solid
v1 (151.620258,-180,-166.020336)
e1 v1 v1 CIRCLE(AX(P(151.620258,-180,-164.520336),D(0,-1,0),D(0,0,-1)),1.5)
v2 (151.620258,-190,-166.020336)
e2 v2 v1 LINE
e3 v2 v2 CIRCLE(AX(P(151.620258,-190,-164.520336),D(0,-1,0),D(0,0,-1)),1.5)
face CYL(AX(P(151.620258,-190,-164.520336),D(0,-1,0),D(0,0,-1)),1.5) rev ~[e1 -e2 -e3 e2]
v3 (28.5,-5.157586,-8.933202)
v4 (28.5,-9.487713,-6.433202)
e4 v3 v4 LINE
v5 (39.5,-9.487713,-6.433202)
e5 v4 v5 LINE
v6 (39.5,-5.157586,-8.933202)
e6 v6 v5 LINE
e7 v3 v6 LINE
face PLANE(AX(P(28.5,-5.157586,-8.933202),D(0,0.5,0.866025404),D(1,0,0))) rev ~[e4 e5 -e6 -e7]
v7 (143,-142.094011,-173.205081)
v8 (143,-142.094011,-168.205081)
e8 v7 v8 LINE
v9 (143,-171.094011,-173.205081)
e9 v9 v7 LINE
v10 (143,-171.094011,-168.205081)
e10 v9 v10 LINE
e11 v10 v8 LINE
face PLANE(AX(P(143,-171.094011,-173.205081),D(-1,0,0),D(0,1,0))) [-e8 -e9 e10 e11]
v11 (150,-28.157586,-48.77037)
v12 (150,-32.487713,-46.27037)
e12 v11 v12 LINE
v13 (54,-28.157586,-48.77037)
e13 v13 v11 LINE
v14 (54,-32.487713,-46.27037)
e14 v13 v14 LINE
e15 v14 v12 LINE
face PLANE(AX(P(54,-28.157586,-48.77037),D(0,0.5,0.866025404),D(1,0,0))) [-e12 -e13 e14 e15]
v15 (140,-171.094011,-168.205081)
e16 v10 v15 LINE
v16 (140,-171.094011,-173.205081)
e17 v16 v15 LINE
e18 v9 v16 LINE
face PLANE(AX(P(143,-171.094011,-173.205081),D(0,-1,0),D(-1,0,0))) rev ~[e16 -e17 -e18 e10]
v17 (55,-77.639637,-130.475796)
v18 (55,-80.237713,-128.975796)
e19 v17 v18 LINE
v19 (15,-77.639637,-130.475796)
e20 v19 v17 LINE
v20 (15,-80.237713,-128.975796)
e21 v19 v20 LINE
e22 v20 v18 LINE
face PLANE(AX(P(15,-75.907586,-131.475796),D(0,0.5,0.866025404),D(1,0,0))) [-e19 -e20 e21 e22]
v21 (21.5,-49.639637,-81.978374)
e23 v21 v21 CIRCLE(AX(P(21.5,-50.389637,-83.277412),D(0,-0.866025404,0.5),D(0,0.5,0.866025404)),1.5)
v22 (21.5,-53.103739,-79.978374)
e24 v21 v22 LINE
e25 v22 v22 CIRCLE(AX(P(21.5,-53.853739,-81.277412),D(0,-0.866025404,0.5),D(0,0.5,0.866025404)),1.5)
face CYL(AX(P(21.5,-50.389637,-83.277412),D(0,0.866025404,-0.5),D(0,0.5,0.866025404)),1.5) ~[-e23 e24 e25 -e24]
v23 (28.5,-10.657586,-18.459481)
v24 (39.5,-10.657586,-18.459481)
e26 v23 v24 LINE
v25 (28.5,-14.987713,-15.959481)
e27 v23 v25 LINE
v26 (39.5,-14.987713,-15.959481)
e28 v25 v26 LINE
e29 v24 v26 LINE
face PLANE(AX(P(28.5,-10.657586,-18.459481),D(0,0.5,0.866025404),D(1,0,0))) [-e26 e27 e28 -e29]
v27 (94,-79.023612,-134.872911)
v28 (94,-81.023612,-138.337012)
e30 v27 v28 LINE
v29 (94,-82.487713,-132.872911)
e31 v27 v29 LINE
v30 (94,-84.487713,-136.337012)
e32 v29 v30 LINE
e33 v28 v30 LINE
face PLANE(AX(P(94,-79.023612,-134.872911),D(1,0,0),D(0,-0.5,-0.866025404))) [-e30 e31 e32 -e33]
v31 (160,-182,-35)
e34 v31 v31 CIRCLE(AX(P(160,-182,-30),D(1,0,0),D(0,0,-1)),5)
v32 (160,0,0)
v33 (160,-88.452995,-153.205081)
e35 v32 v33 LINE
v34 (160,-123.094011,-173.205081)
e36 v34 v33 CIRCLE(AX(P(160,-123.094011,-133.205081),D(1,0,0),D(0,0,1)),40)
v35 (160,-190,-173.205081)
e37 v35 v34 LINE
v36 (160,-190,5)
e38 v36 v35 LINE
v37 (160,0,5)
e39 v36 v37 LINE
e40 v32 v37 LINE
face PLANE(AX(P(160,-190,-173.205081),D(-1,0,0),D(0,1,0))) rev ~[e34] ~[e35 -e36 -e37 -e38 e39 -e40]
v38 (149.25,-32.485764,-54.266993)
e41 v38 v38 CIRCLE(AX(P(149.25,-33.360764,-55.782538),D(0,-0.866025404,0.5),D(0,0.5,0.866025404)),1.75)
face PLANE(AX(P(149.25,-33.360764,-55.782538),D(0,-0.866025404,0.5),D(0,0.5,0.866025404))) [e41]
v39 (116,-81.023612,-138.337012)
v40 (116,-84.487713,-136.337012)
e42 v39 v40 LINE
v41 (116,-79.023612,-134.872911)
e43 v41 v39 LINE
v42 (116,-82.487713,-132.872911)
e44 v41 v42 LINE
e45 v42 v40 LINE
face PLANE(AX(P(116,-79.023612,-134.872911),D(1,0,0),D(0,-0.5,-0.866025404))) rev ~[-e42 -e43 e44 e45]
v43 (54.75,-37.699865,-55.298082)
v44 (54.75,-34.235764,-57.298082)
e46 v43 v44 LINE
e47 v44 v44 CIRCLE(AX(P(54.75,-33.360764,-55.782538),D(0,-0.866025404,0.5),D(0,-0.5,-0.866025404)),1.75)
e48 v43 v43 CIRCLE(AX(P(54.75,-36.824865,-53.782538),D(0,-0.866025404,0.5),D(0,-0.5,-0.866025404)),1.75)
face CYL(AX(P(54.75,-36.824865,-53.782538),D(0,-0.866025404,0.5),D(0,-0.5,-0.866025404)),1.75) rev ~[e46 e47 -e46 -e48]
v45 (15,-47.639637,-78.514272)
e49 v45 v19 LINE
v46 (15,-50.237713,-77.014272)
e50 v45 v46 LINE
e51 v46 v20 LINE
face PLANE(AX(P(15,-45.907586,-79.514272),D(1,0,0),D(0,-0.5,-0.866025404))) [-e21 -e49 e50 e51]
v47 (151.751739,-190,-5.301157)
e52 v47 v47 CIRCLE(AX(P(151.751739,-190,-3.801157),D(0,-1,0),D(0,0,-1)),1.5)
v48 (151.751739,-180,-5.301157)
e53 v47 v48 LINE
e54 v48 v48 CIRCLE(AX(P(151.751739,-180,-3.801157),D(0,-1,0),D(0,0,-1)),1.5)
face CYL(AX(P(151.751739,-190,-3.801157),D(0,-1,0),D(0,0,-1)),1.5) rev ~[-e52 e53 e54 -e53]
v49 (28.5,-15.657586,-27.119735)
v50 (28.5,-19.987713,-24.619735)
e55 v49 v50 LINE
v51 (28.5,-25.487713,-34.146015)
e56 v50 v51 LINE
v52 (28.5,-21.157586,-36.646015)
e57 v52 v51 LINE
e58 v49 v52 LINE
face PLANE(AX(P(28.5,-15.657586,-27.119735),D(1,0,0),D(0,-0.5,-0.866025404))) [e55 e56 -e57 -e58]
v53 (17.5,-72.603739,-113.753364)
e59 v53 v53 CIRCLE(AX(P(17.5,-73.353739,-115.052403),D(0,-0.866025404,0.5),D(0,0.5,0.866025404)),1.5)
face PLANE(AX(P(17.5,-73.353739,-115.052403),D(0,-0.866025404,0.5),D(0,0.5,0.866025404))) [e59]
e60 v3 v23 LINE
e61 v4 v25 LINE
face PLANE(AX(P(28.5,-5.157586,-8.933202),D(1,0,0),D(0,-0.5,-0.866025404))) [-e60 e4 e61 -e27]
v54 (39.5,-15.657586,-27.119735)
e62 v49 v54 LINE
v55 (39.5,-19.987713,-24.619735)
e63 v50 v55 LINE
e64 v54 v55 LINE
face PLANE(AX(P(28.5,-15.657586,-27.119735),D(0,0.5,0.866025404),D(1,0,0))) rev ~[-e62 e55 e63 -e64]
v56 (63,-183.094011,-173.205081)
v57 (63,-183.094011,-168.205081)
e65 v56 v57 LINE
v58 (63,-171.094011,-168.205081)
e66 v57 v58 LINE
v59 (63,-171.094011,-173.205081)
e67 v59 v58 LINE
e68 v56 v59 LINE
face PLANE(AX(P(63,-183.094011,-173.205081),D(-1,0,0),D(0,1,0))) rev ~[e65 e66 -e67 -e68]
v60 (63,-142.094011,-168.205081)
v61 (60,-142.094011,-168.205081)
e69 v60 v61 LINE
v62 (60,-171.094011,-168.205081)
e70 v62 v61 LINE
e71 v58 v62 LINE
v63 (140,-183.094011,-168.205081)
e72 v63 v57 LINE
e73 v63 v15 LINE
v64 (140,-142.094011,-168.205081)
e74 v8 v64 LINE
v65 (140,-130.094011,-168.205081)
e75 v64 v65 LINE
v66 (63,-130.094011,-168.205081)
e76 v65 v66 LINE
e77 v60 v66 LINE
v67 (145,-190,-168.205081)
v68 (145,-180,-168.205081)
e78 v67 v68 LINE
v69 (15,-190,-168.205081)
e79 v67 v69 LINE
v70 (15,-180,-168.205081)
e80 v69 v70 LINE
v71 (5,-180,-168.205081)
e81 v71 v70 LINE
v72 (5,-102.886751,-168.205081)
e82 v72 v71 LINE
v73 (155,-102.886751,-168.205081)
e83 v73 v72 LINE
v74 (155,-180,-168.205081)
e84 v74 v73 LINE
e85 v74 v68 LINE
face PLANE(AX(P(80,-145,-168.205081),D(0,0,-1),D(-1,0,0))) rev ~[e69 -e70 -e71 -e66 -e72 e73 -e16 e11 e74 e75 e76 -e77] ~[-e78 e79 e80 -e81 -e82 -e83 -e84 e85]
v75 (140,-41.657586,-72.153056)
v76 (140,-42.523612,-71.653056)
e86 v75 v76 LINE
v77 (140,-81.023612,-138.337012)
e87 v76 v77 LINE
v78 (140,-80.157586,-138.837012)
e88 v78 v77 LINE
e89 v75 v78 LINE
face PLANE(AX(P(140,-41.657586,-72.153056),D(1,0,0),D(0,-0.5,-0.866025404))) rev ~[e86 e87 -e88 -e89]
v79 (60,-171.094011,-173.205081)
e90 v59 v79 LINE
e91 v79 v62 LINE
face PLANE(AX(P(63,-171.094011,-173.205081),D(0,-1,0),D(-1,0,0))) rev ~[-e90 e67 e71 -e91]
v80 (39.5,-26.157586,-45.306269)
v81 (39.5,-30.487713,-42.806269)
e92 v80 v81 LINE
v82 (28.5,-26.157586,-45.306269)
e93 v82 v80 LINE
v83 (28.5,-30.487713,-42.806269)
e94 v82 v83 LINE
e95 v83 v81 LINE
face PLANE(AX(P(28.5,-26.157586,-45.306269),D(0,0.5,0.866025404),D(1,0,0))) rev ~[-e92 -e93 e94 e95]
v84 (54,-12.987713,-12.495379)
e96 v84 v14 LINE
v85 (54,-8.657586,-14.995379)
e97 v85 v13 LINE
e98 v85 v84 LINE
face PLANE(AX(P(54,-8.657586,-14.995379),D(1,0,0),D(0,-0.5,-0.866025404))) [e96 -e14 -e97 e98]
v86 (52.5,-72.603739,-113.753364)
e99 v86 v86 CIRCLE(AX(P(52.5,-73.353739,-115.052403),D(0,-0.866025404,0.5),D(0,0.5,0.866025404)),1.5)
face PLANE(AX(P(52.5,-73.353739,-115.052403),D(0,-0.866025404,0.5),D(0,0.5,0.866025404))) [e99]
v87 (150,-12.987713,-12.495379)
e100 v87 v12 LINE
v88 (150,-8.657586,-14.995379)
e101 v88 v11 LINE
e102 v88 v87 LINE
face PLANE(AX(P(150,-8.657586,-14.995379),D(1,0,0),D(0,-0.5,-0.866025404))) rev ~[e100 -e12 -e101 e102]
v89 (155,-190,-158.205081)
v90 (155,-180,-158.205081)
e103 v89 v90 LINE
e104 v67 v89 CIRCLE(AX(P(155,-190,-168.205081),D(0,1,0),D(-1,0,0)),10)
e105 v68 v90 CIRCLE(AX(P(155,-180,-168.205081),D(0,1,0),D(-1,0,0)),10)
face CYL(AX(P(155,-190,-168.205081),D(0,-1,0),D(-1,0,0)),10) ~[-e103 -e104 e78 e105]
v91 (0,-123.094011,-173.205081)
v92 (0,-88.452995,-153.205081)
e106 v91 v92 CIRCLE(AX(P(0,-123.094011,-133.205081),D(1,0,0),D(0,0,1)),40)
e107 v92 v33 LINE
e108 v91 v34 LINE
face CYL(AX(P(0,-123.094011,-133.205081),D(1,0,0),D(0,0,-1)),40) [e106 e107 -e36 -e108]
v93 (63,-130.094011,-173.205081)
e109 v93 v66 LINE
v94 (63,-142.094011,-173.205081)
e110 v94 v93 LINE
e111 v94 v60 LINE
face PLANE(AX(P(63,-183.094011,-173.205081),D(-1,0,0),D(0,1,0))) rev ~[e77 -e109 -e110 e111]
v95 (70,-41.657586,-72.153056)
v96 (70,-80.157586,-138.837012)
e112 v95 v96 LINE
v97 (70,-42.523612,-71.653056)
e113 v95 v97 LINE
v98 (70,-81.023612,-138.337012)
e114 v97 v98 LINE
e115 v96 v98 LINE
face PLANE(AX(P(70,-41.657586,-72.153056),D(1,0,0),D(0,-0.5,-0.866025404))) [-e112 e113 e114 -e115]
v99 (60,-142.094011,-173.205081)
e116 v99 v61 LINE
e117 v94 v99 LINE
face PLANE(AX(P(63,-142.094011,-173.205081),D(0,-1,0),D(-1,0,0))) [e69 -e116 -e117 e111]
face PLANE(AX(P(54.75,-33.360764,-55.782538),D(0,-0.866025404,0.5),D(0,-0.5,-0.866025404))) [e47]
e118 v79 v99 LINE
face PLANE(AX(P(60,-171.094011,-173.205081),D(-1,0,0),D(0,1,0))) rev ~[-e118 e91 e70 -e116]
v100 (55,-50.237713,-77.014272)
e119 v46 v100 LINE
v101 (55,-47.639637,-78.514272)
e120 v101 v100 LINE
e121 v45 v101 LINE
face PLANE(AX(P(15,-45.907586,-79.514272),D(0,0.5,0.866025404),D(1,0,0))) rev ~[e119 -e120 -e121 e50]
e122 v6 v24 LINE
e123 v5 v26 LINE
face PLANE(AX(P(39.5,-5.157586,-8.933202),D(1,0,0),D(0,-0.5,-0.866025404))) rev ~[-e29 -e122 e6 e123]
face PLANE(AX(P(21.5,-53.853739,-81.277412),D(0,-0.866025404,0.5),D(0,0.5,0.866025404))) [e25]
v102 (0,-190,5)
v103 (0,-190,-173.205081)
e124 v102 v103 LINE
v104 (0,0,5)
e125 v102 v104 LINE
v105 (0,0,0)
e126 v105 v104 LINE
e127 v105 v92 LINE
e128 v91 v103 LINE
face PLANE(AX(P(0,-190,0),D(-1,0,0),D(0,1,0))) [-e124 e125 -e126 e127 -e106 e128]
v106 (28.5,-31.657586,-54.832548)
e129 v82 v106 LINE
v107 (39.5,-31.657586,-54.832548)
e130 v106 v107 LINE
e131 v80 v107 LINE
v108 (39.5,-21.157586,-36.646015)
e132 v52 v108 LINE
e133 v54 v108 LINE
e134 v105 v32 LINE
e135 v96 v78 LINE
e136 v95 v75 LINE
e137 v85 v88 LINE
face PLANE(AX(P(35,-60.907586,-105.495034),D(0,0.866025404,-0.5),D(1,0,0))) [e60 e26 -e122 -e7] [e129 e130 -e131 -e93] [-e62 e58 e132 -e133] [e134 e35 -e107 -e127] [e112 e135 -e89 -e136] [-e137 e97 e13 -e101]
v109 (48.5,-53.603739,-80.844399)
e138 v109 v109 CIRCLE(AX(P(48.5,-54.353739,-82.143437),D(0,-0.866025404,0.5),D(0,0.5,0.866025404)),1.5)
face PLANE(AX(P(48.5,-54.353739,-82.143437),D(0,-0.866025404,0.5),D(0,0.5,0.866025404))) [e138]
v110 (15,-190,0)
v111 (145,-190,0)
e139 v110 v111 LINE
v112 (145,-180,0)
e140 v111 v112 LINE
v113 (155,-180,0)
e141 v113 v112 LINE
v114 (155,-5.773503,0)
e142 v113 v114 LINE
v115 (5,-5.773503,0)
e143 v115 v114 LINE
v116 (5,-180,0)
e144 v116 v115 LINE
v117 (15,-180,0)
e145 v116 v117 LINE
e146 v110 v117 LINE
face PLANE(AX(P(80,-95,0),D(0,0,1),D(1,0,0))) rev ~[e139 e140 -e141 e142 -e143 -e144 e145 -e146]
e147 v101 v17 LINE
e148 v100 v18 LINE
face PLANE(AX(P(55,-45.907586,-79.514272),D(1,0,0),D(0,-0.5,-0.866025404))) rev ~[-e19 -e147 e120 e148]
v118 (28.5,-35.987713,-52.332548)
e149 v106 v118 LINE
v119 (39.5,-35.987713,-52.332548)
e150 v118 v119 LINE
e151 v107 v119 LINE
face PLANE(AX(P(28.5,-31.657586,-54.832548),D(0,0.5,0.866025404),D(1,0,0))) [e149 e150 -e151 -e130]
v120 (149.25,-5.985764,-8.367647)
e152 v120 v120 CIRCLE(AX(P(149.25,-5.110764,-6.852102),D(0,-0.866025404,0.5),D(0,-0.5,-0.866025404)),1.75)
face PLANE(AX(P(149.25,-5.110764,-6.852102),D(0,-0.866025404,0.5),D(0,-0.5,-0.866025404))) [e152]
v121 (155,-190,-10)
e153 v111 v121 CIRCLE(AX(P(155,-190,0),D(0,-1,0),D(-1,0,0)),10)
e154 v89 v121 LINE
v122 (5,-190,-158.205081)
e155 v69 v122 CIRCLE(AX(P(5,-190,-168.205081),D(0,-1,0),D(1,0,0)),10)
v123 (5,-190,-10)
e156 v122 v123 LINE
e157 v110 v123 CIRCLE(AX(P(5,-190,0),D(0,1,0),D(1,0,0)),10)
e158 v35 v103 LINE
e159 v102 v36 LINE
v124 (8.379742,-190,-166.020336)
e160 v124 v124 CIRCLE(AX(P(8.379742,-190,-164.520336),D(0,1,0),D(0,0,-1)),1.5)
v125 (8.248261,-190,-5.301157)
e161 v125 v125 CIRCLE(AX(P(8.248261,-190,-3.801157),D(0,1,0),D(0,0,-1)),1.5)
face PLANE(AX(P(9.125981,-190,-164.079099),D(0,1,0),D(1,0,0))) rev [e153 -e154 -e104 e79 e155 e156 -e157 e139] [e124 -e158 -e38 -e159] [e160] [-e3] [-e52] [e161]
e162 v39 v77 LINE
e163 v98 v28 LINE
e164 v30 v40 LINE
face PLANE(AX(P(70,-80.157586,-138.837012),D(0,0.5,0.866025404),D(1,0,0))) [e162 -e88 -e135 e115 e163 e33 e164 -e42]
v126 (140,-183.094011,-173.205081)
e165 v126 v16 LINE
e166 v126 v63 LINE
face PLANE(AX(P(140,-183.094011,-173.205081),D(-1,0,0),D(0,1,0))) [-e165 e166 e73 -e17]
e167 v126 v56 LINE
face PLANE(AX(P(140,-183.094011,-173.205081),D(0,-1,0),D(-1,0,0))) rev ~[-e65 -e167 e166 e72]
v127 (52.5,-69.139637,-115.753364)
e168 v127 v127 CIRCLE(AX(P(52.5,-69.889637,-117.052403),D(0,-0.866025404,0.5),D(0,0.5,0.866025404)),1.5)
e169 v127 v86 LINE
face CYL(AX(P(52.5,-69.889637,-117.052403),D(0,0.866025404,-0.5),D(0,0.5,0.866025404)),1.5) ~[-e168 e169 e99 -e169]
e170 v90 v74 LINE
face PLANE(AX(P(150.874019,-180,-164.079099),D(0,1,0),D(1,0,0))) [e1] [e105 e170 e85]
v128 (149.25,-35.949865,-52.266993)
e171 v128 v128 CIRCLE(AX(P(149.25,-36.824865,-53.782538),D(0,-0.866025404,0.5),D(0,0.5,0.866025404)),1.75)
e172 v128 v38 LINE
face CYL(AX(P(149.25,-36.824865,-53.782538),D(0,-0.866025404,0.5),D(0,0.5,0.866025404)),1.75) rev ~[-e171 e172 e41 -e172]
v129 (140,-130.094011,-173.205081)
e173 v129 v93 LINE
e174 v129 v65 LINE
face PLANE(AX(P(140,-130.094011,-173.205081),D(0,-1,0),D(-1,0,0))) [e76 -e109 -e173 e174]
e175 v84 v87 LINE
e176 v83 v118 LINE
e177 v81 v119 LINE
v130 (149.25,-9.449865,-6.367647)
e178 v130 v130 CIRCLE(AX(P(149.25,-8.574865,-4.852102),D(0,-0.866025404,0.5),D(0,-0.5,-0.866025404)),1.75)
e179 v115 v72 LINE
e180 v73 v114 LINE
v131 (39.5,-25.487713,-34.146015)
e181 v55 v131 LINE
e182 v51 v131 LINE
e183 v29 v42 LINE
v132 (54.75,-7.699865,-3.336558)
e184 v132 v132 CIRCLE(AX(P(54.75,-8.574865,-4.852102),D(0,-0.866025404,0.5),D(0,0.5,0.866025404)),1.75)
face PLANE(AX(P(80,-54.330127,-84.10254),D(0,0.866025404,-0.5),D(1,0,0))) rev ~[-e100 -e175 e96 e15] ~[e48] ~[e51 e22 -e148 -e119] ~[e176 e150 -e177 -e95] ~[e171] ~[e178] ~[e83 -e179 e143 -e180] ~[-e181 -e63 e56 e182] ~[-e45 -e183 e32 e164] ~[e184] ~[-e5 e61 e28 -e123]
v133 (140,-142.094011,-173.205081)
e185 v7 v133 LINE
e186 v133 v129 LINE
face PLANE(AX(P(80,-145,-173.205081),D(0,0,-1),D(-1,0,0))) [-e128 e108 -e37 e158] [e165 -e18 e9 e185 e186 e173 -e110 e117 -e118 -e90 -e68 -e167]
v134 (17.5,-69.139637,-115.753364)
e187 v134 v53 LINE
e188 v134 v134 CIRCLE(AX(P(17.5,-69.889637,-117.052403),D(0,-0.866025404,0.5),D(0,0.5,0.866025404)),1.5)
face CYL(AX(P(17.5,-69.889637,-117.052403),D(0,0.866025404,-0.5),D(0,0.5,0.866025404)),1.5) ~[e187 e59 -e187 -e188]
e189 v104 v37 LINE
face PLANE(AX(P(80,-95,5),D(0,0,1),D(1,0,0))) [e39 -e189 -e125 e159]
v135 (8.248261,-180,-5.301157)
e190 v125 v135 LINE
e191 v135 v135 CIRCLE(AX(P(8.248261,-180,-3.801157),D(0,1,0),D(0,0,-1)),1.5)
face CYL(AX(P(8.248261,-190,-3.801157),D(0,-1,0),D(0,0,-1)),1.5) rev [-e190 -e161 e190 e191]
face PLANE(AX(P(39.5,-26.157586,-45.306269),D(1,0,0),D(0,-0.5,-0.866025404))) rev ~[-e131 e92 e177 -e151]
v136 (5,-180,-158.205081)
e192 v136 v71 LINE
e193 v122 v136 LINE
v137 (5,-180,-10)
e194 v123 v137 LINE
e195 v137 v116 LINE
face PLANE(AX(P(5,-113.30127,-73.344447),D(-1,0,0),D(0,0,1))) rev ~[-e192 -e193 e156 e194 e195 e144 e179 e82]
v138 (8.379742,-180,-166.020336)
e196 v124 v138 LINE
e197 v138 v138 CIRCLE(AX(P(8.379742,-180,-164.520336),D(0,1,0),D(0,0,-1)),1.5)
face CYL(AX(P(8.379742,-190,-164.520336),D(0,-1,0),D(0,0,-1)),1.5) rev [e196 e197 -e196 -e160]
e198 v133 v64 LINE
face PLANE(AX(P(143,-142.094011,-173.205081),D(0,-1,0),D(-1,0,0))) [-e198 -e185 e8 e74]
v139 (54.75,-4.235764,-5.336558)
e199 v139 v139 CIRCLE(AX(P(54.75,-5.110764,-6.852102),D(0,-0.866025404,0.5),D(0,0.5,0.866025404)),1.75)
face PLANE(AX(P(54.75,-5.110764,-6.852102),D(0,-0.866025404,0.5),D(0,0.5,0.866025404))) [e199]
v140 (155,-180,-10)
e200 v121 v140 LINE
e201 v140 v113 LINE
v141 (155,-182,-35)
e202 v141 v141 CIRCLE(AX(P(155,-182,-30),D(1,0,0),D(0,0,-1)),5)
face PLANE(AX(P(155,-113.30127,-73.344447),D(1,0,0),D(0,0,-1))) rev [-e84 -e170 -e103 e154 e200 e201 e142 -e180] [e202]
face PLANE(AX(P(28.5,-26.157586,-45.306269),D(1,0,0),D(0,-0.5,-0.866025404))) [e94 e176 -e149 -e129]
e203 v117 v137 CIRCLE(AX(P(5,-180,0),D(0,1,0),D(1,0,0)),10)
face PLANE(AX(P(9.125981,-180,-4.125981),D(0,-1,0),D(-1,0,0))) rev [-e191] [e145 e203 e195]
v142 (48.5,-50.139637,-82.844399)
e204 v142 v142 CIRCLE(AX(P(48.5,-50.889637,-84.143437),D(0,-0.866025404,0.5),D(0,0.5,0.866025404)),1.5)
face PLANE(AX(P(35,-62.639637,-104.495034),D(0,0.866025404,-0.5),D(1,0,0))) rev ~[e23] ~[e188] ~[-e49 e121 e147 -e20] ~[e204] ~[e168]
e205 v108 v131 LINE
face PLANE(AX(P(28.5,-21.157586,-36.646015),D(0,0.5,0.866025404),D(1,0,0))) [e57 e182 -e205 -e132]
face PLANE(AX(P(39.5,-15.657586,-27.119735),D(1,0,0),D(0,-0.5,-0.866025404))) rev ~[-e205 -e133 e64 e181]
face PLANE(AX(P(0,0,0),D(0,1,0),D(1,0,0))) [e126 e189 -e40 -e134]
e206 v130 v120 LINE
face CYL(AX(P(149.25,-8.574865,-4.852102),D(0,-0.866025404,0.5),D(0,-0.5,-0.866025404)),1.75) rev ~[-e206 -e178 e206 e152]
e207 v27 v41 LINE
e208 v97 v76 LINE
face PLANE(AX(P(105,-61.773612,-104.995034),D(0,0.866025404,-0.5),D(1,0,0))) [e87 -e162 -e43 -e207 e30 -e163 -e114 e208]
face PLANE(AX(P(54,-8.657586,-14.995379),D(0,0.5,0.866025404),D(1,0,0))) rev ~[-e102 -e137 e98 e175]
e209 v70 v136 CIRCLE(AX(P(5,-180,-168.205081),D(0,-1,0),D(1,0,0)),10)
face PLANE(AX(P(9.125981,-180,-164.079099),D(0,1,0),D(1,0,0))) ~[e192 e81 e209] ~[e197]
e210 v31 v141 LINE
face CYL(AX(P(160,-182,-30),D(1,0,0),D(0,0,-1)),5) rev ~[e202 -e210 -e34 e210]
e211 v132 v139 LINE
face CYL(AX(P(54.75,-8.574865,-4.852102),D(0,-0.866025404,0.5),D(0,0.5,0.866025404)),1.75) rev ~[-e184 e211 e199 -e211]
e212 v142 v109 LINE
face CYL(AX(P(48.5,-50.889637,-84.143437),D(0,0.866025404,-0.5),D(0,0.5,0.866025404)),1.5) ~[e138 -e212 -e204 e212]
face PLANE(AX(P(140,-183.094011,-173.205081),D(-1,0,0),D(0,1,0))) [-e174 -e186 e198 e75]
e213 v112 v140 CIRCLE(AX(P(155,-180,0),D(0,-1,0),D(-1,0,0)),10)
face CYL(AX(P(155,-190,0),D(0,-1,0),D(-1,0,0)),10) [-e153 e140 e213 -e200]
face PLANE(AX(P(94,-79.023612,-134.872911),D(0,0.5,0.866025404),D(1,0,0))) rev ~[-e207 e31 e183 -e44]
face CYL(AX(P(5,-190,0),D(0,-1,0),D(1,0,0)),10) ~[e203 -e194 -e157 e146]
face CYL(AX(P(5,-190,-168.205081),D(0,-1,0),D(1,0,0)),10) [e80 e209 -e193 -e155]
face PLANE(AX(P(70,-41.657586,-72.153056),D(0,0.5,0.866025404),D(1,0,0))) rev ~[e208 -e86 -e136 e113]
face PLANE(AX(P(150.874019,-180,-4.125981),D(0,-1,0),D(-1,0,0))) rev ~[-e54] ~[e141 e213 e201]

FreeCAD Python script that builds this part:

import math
import FreeCAD as App
import Part
import Sketcher

V = App.Vector
Q = App.Units.Quantity


def edges_at(feature, points):
    """Names of the edges that pass closest to the given points."""
    edges = feature.Shape.Edges
    near = lambda p: min(range(len(edges)), key=lambda i: edges[i].distToShape(Part.Vertex(*p))[0])
    return sorted({f"Edge{near(p) + 1}" for p in points})

doc = App.newDocument("Part")
body = doc.addObject("PartDesign::Body", "Body")

# Sketch on YZ plane
sketch1 = body.newObject("Sketcher::SketchObject", "Sketch")
sketch1.AttachmentSupport = (doc.getObject("YZ_Plane"), [""])
sketch1.MapMode = "FlatFace"
sketch1.addGeometry([
    Part.LineSegment(V(-100, -173, 0), V(0, 0, 0)),
    Part.LineSegment(V(0, 0, 0), V(-190, 0, 0)),
    Part.LineSegment(V(-190, 0, 0), V(-190, -173, 0)),
    Part.LineSegment(V(-190, -173, 0), V(-100, -173, 0)),
], False)
sketch1.addConstraint([
    Sketcher.Constraint("Coincident", 0, 2, 1, 1),
    Sketcher.Constraint("Coincident", 1, 2, 2, 1),
    Sketcher.Constraint("Coincident", 2, 2, 3, 1),
    Sketcher.Constraint("Coincident", 3, 2, 0, 1),
    Sketcher.Constraint("Horizontal", 1),
    Sketcher.Constraint("Vertical", 2),
    Sketcher.Constraint("Horizontal", 3),
    Sketcher.Constraint("Coincident", 0, 2, -1, 1),
    Sketcher.Constraint("DistanceX", 1, 2, 1, 1, 190.0),
    Sketcher.Constraint("DistanceX", 3, 1, 3, 2, 90.0),
    Sketcher.Constraint("Angle", 0, Q("60 deg")),
])
pad1 = body.newObject("PartDesign::Pad", "Pad")
pad1.Profile = sketch1
pad1.Length = 5

# Sketch on an angled plane
sketch2 = body.newObject("Sketcher::SketchObject", "Sketch001")
sketch2.Placement = App.Placement(V(0, 0, 0), App.Rotation(V(1, 0, 0), V(0, -0.5, -0.866025404), V(0, 0.866025404, -0.5), "ZXY"))
sketch2.addGeometry([
    Part.LineSegment(V(0, 200, 0), V(0, 0, 0)),
    Part.LineSegment(V(0, 0, 0), V(160, 0, 0)),
    Part.LineSegment(V(160, 0, 0), V(160, 200, 0)),
    Part.LineSegment(V(160, 200, 0), V(0, 200, 0)),
], False)
sketch2.addConstraint([
    Sketcher.Constraint("Coincident", 0, 2, 1, 1),
    Sketcher.Constraint("Coincident", 1, 2, 2, 1),
    Sketcher.Constraint("Coincident", 2, 2, 3, 1),
    Sketcher.Constraint("Coincident", 3, 2, 0, 1),
    Sketcher.Constraint("Vertical", 0),
    Sketcher.Constraint("Horizontal", 1),
    Sketcher.Constraint("Vertical", 2),
    Sketcher.Constraint("Horizontal", 3),
    Sketcher.Constraint("Coincident", 0, 2, -1, 1),
    Sketcher.Constraint("DistanceX", 1, 1, 1, 2, 160.0),
    Sketcher.Constraint("DistanceY", 0, 2, 0, 1, 200.0),
])
pad2 = body.newObject("PartDesign::Pad", "Pad001")
pad2.Profile = sketch2
pad2.Length = 5
pad2.Reversed = True

# Sketch on XY plane
sketch3 = body.newObject("Sketcher::SketchObject", "Sketch002")
sketch3.AttachmentSupport = (doc.getObject("XY_Plane"), [""])
sketch3.MapMode = "FlatFace"
sketch3.addGeometry([
    Part.LineSegment(V(0, 0, 0), V(0, -190, 0)),
    Part.LineSegment(V(0, -190, 0), V(160, -190, 0)),
    Part.LineSegment(V(160, -190, 0), V(160, 0, 0)),
    Part.LineSegment(V(160, 0, 0), V(0, 0, 0)),
], False)
sketch3.addConstraint([
    Sketcher.Constraint("Coincident", 0, 2, 1, 1),
    Sketcher.Constraint("Coincident", 1, 2, 2, 1),
    Sketcher.Constraint("Coincident", 2, 2, 3, 1),
    Sketcher.Constraint("Coincident", 3, 2, 0, 1),
    Sketcher.Constraint("Vertical", 0),
    Sketcher.Constraint("Horizontal", 1),
    Sketcher.Constraint("Vertical", 2),
    Sketcher.Constraint("Horizontal", 3),
    Sketcher.Constraint("Coincident", 3, 2, -1, 1),
    Sketcher.Constraint("DistanceX", 1, 1, 1, 2, 160.0),
    Sketcher.Constraint("DistanceY", 0, 2, 0, 1, 190.0),
])
pad3 = body.newObject("PartDesign::Pad", "Pad002")
pad3.Profile = sketch3
pad3.Length = 5

# Sketch on XY plane
sketch4 = body.newObject("Sketcher::SketchObject", "Sketch003")
sketch4.AttachmentSupport = (doc.getObject("XY_Plane"), [""])
sketch4.MapMode = "FlatFace"
sketch4.AttachmentOffset = App.Placement(V(0, 0, -173.205081), App.Rotation())
sketch4.addGeometry([
    Part.LineSegment(V(160, -100, 0), V(160, -190, 0)),
    Part.LineSegment(V(160, -190, 0), V(0, -190, 0)),
    Part.LineSegment(V(0, -190, 0), V(0, -100, 0)),
    Part.LineSegment(V(0, -100, 0), V(160, -100, 0)),
], False)
sketch4.addConstraint([
    Sketcher.Constraint("Coincident", 0, 2, 1, 1),
    Sketcher.Constraint("Coincident", 1, 2, 2, 1),
    Sketcher.Constraint("Coincident", 2, 2, 3, 1),
    Sketcher.Constraint("Coincident", 3, 2, 0, 1),
    Sketcher.Constraint("Vertical", 0),
    Sketcher.Constraint("Horizontal", 1),
    Sketcher.Constraint("Vertical", 2),
    Sketcher.Constraint("Horizontal", 3),
    Sketcher.Constraint("PointOnObject", 1, 2, -2),
    Sketcher.Constraint("DistanceX", 1, 2, 1, 1, 160.0),
    Sketcher.Constraint("DistanceY", 0, 2, 0, 1, 90.0),
    Sketcher.Constraint("DistanceY", 0, 2, -1, 1, 190.0),
])
pad4 = body.newObject("PartDesign::Pad", "Pad003")
pad4.Profile = sketch4
pad4.Length = 5
doc.recompute()

datumplane = body.newObject("PartDesign::Plane", "DatumPlane")
datumplane.AttachmentSupport = (doc.getObject("YZ_Plane"), [""])
datumplane.MapMode = "FlatFace"
datumplane.AttachmentOffset = App.Placement(V(0, 0, 80), App.Rotation())
mirrored = body.newObject("PartDesign::Mirrored", "Mirrored")
mirrored.Originals = [pad1]
mirrored.MirrorPlane = (datumplane, [""])
body.Tip = mirrored

# Sketch on an angled plane
sketch5 = body.newObject("Sketcher::SketchObject", "Sketch004")
sketch5.Placement = App.Placement(V(0, 0, 0), App.Rotation(V(1, 0, 0), V(0, -0.5, -0.866025404), V(0, 0.866025404, -0.5), "ZXY"))
sketch5.addGeometry([
    Part.LineSegment(V(54, 56, 0), V(54, 17, 0)),  # 0
    Part.LineSegment(V(54, 17, 0), V(150, 17, 0)),  # 1
    Part.LineSegment(V(150, 17, 0), V(150, 56, 0)),  # 2
    Part.LineSegment(V(150, 56, 0), V(54, 56, 0)),  # 3
    Part.LineSegment(V(28, 21, 0), V(28, 10, 0)),  # 4
    Part.LineSegment(V(28, 10, 0), V(40, 10, 0)),  # 5
    Part.LineSegment(V(40, 10, 0), V(40, 21, 0)),  # 6
    Part.LineSegment(V(40, 21, 0), V(28, 21, 0)),  # 7
    Part.LineSegment(V(28, 42, 0), V(28, 31, 0)),  # 8
    Part.LineSegment(V(28, 31, 0), V(40, 31, 0)),  # 9
    Part.LineSegment(V(40, 31, 0), V(40, 42, 0)),  # 10
    Part.LineSegment(V(40, 42, 0), V(28, 42, 0)),  # 11
    Part.LineSegment(V(28, 63, 0), V(28, 52, 0)),  # 12
    Part.LineSegment(V(28, 52, 0), V(40, 52, 0)),  # 13
    Part.LineSegment(V(40, 52, 0), V(40, 63, 0)),  # 14
    Part.LineSegment(V(40, 63, 0), V(28, 63, 0)),  # 15
], False)
sketch5.addConstraint([
    Sketcher.Constraint("Coincident", 0, 2, 1, 1),
    Sketcher.Constraint("Coincident", 1, 2, 2, 1),
    Sketcher.Constraint("Coincident", 2, 2, 3, 1),
    Sketcher.Constraint("Coincident", 3, 2, 0, 1),
    Sketcher.Constraint("Coincident", 4, 2, 5, 1),
    Sketcher.Constraint("Coincident", 5, 2, 6, 1),
    Sketcher.Constraint("Coincident", 6, 2, 7, 1),
    Sketcher.Constraint("Coincident", 7, 2, 4, 1),
    Sketcher.Constraint("Coincident", 8, 2, 9, 1),
    Sketcher.Constraint("Coincident", 9, 2, 10, 1),
    Sketcher.Constraint("Coincident", 10, 2, 11, 1),
    Sketcher.Constraint("Coincident", 11, 2, 8, 1),
    Sketcher.Constraint("Coincident", 12, 2, 13, 1),
    Sketcher.Constraint("Coincident", 13, 2, 14, 1),
    Sketcher.Constraint("Coincident", 14, 2, 15, 1),
    Sketcher.Constraint("Coincident", 15, 2, 12, 1),
    Sketcher.Constraint("Vertical", 0),
    Sketcher.Constraint("Horizontal", 1),
    Sketcher.Constraint("Vertical", 2),
    Sketcher.Constraint("Horizontal", 3),
    Sketcher.Constraint("Vertical", 4),
    Sketcher.Constraint("Horizontal", 5),
    Sketcher.Constraint("Vertical", 6),
    Sketcher.Constraint("Horizontal", 7),
    Sketcher.Constraint("Vertical", 8),
    Sketcher.Constraint("Horizontal", 9),
    Sketcher.Constraint("Vertical", 10),
    Sketcher.Constraint("Horizontal", 11),
    Sketcher.Constraint("Vertical", 12),
    Sketcher.Constraint("Horizontal", 13),
    Sketcher.Constraint("Vertical", 14),
    Sketcher.Constraint("Horizontal", 15),
    Sketcher.Constraint("Vertical", 7, 2, 8, 2),
    Sketcher.Constraint("Vertical", 6, 2, 9, 2),
    Sketcher.Constraint("Vertical", 11, 2, 12, 2),
    Sketcher.Constraint("Vertical", 10, 2, 13, 2),
    Sketcher.Constraint("Equal", 15, 4),
    Sketcher.Constraint("Equal", 6, 8),
    Sketcher.Constraint("Equal", 10, 12),
    Sketcher.Constraint("DistanceX", 1, 1, 1, 2, 96.0),
    Sketcher.Constraint("DistanceX", 5, 1, 5, 2, 11.0),
    Sketcher.Constraint("DistanceY", 0, 2, 0, 1, 39.0),
    Sketcher.Constraint("DistanceX", -1, 1, 0, 2, 54.0),
    Sketcher.Constraint("DistanceY", 4, 2, 0, 2, 7.0),
    Sketcher.Constraint("DistanceY", 7, 2, 8, 2, 10.0),
    Sketcher.Constraint("DistanceY", 11, 2, 12, 2, 10.0),
    Sketcher.Constraint("DistanceX", -1, 1, 4, 2, 28.5),
    Sketcher.Constraint("DistanceY", -1, 1, 0, 2, 17.315173),
])
pocket1 = body.newObject("PartDesign::Pocket", "Pocket")
pocket1.Profile = sketch5
pocket1.Length = 5
doc.recompute()

fillet = body.newObject("PartDesign::Fillet", "Fillet")
fillet.Base = (pocket1, edges_at(pocket1, [(80, -100, -173.205)]))
fillet.Radius = 40

# Sketch on an angled plane
sketch6 = body.newObject("Sketcher::SketchObject", "Sketch005")
sketch6.Placement = App.Placement(V(0, 0, 0), App.Rotation(V(1, 0, 0), V(0, -0.5, -0.866025404), V(0, 0.866025404, -0.5), "ZXY"))
sketch6.addGeometry([
    Part.LineSegment(V(70, 160, 0), V(70, 83, 0)),
    Part.LineSegment(V(70, 83, 0), V(140, 83, 0)),
    Part.LineSegment(V(140, 83, 0), V(140, 160, 0)),
    Part.LineSegment(V(140, 160, 0), V(70, 160, 0)),
], False)
sketch6.addConstraint([
    Sketcher.Constraint("Coincident", 0, 2, 1, 1),
    Sketcher.Constraint("Coincident", 1, 2, 2, 1),
    Sketcher.Constraint("Coincident", 2, 2, 3, 1),
    Sketcher.Constraint("Coincident", 3, 2, 0, 1),
    Sketcher.Constraint("Vertical", 0),
    Sketcher.Constraint("Horizontal", 1),
    Sketcher.Constraint("Vertical", 2),
    Sketcher.Constraint("Horizontal", 3),
    Sketcher.Constraint("DistanceX", 1, 1, 1, 2, 70.0),
    Sketcher.Constraint("DistanceY", 0, 2, 0, 1, 77.0),
    Sketcher.Constraint("DistanceX", -1, 1, 0, 2, 70.0),
    Sketcher.Constraint("DistanceY", -1, 1, 0, 2, 83.315173),
])
pocket2 = body.newObject("PartDesign::Pocket", "Pocket001")
pocket2.Profile = sketch6
pocket2.Length = 1

# Sketch on an angled plane
sketch7 = body.newObject("Sketcher::SketchObject", "Sketch006")
sketch7.Placement = App.Placement(V(0, -0.866025, 0.5), App.Rotation(V(1, 0, 0), V(0, -0.5, -0.866025404), V(0, 0.866025404, -0.5), "ZXY"))
sketch7.addGeometry([
    Part.LineSegment(V(94, 160.3, 0), V(94, 156.3, 0)),
    Part.LineSegment(V(94, 156.3, 0), V(116, 156.3, 0)),
    Part.LineSegment(V(116, 156.3, 0), V(116, 160.3, 0)),
    Part.LineSegment(V(116, 160.3, 0), V(94, 160.3, 0)),
], False)
sketch7.addConstraint([
    Sketcher.Constraint("Coincident", 0, 2, 1, 1),
    Sketcher.Constraint("Coincident", 1, 2, 2, 1),
    Sketcher.Constraint("Coincident", 2, 2, 3, 1),
    Sketcher.Constraint("Coincident", 3, 2, 0, 1),
    Sketcher.Constraint("Vertical", 0),
    Sketcher.Constraint("Horizontal", 1),
    Sketcher.Constraint("Vertical", 2),
    Sketcher.Constraint("Horizontal", 3),
    Sketcher.Constraint("DistanceX", 1, 1, 1, 2, 22.0),
    Sketcher.Constraint("DistanceY", 0, 2, 0, 1, 4.0),
    Sketcher.Constraint("DistanceX", -1, 1, 0, 2, 94.0),
    Sketcher.Constraint("DistanceY", -1, 1, 0, 2, 156.315173),
])
pocket3 = body.newObject("PartDesign::Pocket", "Pocket002")
pocket3.Profile = sketch7
pocket3.Length = 4

# Sketch on an angled plane
sketch8 = body.newObject("Sketcher::SketchObject", "Sketch007")
sketch8.Placement = App.Placement(V(0, 0, 0), App.Rotation(V(1, 0, 0), V(0, -0.5, -0.866025404), V(0, 0.866025404, -0.5), "ZXY"))
sketch8.addGeometry([
    Part.LineSegment(V(15, 152, 0), V(15, 92, 0)),
    Part.LineSegment(V(15, 92, 0), V(55, 92, 0)),
    Part.LineSegment(V(55, 92, 0), V(55, 152, 0)),
    Part.LineSegment(V(55, 152, 0), V(15, 152, 0)),
], False)
sketch8.addConstraint([
    Sketcher.Constraint("Coincident", 0, 2, 1, 1),
    Sketcher.Constraint("Coincident", 1, 2, 2, 1),
    Sketcher.Constraint("Coincident", 2, 2, 3, 1),
    Sketcher.Constraint("Coincident", 3, 2, 0, 1),
    Sketcher.Constraint("Vertical", 0),
    Sketcher.Constraint("Horizontal", 1),
    Sketcher.Constraint("Vertical", 2),
    Sketcher.Constraint("Horizontal", 3),
    Sketcher.Constraint("DistanceX", 1, 1, 1, 2, 40.0),
    Sketcher.Constraint("DistanceY", 0, 2, 0, 1, 60.0),
    Sketcher.Constraint("DistanceX", -1, 1, 0, 2, 15.0),
    Sketcher.Constraint("DistanceY", -1, 1, 0, 2, 91.815173),
])
pocket4 = body.newObject("PartDesign::Pocket", "Pocket003")
pocket4.Profile = sketch8
pocket4.Length = 5

# Sketch on an angled plane
sketch9 = body.newObject("Sketcher::SketchObject", "Sketch008")
sketch9.Placement = App.Placement(V(0, 0, 0), App.Rotation(V(1, 0, 0), V(0, -0.5, -0.866025404), V(0, 0.866025404, -0.5), "ZXY"))
sketch9.addGeometry([
    Part.LineSegment(V(15, 152, 0), V(15, 92, 0)),
    Part.LineSegment(V(15, 92, 0), V(55, 92, 0)),
    Part.LineSegment(V(55, 92, 0), V(55, 152, 0)),
    Part.LineSegment(V(55, 152, 0), V(15, 152, 0)),
], False)
sketch9.addConstraint([
    Sketcher.Constraint("Coincident", 0, 2, 1, 1),
    Sketcher.Constraint("Coincident", 1, 2, 2, 1),
    Sketcher.Constraint("Coincident", 2, 2, 3, 1),
    Sketcher.Constraint("Coincident", 3, 2, 0, 1),
    Sketcher.Constraint("Vertical", 0),
    Sketcher.Constraint("Horizontal", 1),
    Sketcher.Constraint("Vertical", 2),
    Sketcher.Constraint("Horizontal", 3),
    Sketcher.Constraint("DistanceX", 1, 1, 1, 2, 40.0),
    Sketcher.Constraint("DistanceY", 0, 2, 0, 1, 60.0),
    Sketcher.Constraint("DistanceX", -1, 1, 0, 2, 15.0),
    Sketcher.Constraint("DistanceY", -1, 1, 0, 2, 91.815173),
])
pad5 = body.newObject("PartDesign::Pad", "Pad004")
pad5.Profile = sketch9
pad5.Length = 2
pad5.Reversed = True

# Sketch on XY plane
sketch10 = body.newObject("Sketcher::SketchObject", "Sketch009")
sketch10.AttachmentSupport = (doc.getObject("XY_Plane"), [""])
sketch10.MapMode = "FlatFace"
sketch10.AttachmentOffset = App.Placement(V(0, 0, -173.205081), App.Rotation())
sketch10.addGeometry([
    Part.LineSegment(V(140, -130, 0), V(140, -183, 0)),
    Part.LineSegment(V(140, -183, 0), V(63, -183, 0)),
    Part.LineSegment(V(63, -183, 0), V(63, -130, 0)),
    Part.LineSegment(V(63, -130, 0), V(140, -130, 0)),
], False)
sketch10.addConstraint([
    Sketcher.Constraint("Coincident", 0, 2, 1, 1),
    Sketcher.Constraint("Coincident", 1, 2, 2, 1),
    Sketcher.Constraint("Coincident", 2, 2, 3, 1),
    Sketcher.Constraint("Coincident", 3, 2, 0, 1),
    Sketcher.Constraint("Vertical", 0),
    Sketcher.Constraint("Horizontal", 1),
    Sketcher.Constraint("Vertical", 2),
    Sketcher.Constraint("Horizontal", 3),
    Sketcher.Constraint("DistanceX", 1, 2, 1, 1, 77.0),
    Sketcher.Constraint("DistanceY", 0, 2, 0, 1, 53.0),
    Sketcher.Constraint("DistanceX", -1, 1, 0, 2, 140.0),
    Sketcher.Constraint("DistanceY", 0, 2, -1, 1, 183.094011),
])
pocket5 = body.newObject("PartDesign::Pocket", "Pocket004")
pocket5.Profile = sketch10
pocket5.Length = 5
pocket5.Reversed = True

# Sketch on XY plane
sketch11 = body.newObject("Sketcher::SketchObject", "Sketch010")
sketch11.AttachmentSupport = (doc.getObject("XY_Plane"), [""])
sketch11.MapMode = "FlatFace"
sketch11.AttachmentOffset = App.Placement(V(0, 0, -173.205081), App.Rotation())
sketch11.addGeometry([
    Part.LineSegment(V(63, -142.1, 0), V(63, -171.1, 0)),  # 0
    Part.LineSegment(V(63, -171.1, 0), V(60, -171.1, 0)),  # 1
    Part.LineSegment(V(60, -171.1, 0), V(60, -142.1, 0)),  # 2
    Part.LineSegment(V(60, -142.1, 0), V(63, -142.1, 0)),  # 3
    Part.LineSegment(V(143, -142.1, 0), V(143, -171.1, 0)),  # 4
    Part.LineSegment(V(143, -171.1, 0), V(140, -171.1, 0)),  # 5
    Part.LineSegment(V(140, -171.1, 0), V(140, -142.1, 0)),  # 6
    Part.LineSegment(V(140, -142.1, 0), V(143, -142.1, 0)),  # 7
], False)
sketch11.addConstraint([
    Sketcher.Constraint("Coincident", 0, 2, 1, 1),
    Sketcher.Constraint("Coincident", 1, 2, 2, 1),
    Sketcher.Constraint("Coincident", 2, 2, 3, 1),
    Sketcher.Constraint("Coincident", 3, 2, 0, 1),
    Sketcher.Constraint("Coincident", 4, 2, 5, 1),
    Sketcher.Constraint("Coincident", 5, 2, 6, 1),
    Sketcher.Constraint("Coincident", 6, 2, 7, 1),
    Sketcher.Constraint("Coincident", 7, 2, 4, 1),
    Sketcher.Constraint("Vertical", 0),
    Sketcher.Constraint("Horizontal", 1),
    Sketcher.Constraint("Vertical", 2),
    Sketcher.Constraint("Horizontal", 3),
    Sketcher.Constraint("Vertical", 4),
    Sketcher.Constraint("Horizontal", 5),
    Sketcher.Constraint("Vertical", 6),
    Sketcher.Constraint("Horizontal", 7),
    Sketcher.Constraint("Horizontal", 1, 2, 4, 2),
    Sketcher.Constraint("Horizontal", 3, 2, 6, 2),
    Sketcher.Constraint("Equal", 3, 5),
    Sketcher.Constraint("DistanceX", 1, 2, 1, 1, 3.0),
    Sketcher.Constraint("DistanceY", 0, 2, 0, 1, 29.0),
    Sketcher.Constraint("DistanceX", -1, 1, 0, 2, 63.0),
    Sketcher.Constraint("DistanceX", -1, 1, 4, 2, 143.0),
    Sketcher.Constraint("DistanceY", 0, 2, -1, 1, 171.094011),
])
pocket6 = body.newObject("PartDesign::Pocket", "Pocket005")
pocket6.Profile = sketch11
pocket6.Length = 5
pocket6.Reversed = True

# Sketch on an angled plane
sketch12 = body.newObject("Sketcher::SketchObject", "Sketch011")
sketch12.Placement = App.Placement(V(0, -4.330127, 2.5), App.Rotation(V(-1, 0, 0), V(0, -0.5, -0.866025404), V(0, -0.866025404, 0.5), "ZXY"))
sketch12.addGeometry([
    Part.Circle(V(-54.8, 65, 0), V(0, 0, 1), 1.8),
    Part.Circle(V(-149.2, 65, 0), V(0, 0, 1), 1.8),
    Part.Circle(V(-54.8, 8.5, 0), V(0, 0, 1), 1.8),
    Part.Circle(V(-149.2, 8.5, 0), V(0, 0, 1), 1.8),
], False)
sketch12.addConstraint([
    Sketcher.Constraint("Equal", 0, 1),
    Sketcher.Constraint("Equal", 1, 2),
    Sketcher.Constraint("Equal", 2, 3),
    Sketcher.Constraint("Horizontal", 0, 3, 1, 3),
    Sketcher.Constraint("Horizontal", 2, 3, 3, 3),
    Sketcher.Constraint("Vertical", 0, 3, 2, 3),
    Sketcher.Constraint("Vertical", 1, 3, 3, 3),
    Sketcher.Constraint("Diameter", 0, 3.5),
    Sketcher.Constraint("DistanceX", 1, 3, 0, 3, 94.5),
    Sketcher.Constraint("DistanceY", 2, 3, 0, 3, 56.5),
    Sketcher.Constraint("DistanceX", 0, 3, -1, 1, 54.75),
    Sketcher.Constraint("DistanceY", -1, 1, 0, 3, 64.989476),
])
pocket7 = body.newObject("PartDesign::Pocket", "Pocket006")
pocket7.Profile = sketch12
pocket7.Length = 4

# Sketch on an angled plane
sketch13 = body.newObject("Sketcher::SketchObject", "Sketch012")
sketch13.Placement = App.Placement(V(0, -1.732051, 1), App.Rotation(V(-1, 0, 0), V(0, -0.5, -0.866025404), V(0, -0.866025404, 0.5), "ZXY"))
sketch13.addGeometry([
    Part.Circle(V(-48.5, 98.3, 0), V(0, 0, 1), 1.5),
    Part.Circle(V(-21.5, 97.3, 0), V(0, 0, 1), 1.5),
    Part.Circle(V(-17.5, 136.3, 0), V(0, 0, 1), 1.5),
    Part.Circle(V(-52.5, 136.3, 0), V(0, 0, 1), 1.5),
], False)
sketch13.addConstraint([
    Sketcher.Constraint("Equal", 0, 1),
    Sketcher.Constraint("Equal", 1, 2),
    Sketcher.Constraint("Equal", 2, 3),
    Sketcher.Constraint("Horizontal", 2, 3, 3, 3),
    Sketcher.Constraint("Diameter", 0, 3.0),
    Sketcher.Constraint("DistanceX", 0, 3, 1, 3, 27.0),
    Sketcher.Constraint("DistanceY", 1, 3, 0, 3, 1.0),
    Sketcher.Constraint("DistanceX", 1, 3, 2, 3, 4.0),
    Sketcher.Constraint("DistanceY", 1, 3, 2, 3, 39.0),
    Sketcher.Constraint("DistanceX", 3, 3, 2, 3, 35.0),
    Sketcher.Constraint("DistanceX", 0, 3, -1, 1, 48.5),
    Sketcher.Constraint("DistanceY", -1, 1, 0, 3, 98.315173),
])
pad6 = body.newObject("PartDesign::Pad", "Pad005")
pad6.Profile = sketch13
pad6.Length = 4

# Sketch on XZ plane
sketch14 = body.newObject("Sketcher::SketchObject", "Sketch013")
sketch14.AttachmentSupport = (doc.getObject("XZ_Plane"), [""])
sketch14.MapMode = "FlatFace"
sketch14.AttachmentOffset = App.Placement(V(0, 0, 190), App.Rotation())
sketch14.addGeometry([
    Part.LineSegment(V(155, 0, 0), V(145, 0, 0)),
    Part.ArcOfCircle(Part.Circle(V(155, 0, 0), V(0, 0, 1), 10), math.radians(180), math.radians(270)),
    Part.LineSegment(V(155, -10, 0), V(155, 0, 0)),
    Part.Circle(V(151.8, -3.8, 0), V(0, 0, 1), 1.5),
], False)
sketch14.addConstraint([
    Sketcher.Constraint("Coincident", 0, 2, 1, 1),
    Sketcher.Constraint("Coincident", 1, 2, 2, 1),
    Sketcher.Constraint("Coincident", 2, 2, 0, 1),
    Sketcher.Constraint("Horizontal", 0),
    Sketcher.Constraint("Vertical", 2),
    Sketcher.Constraint("Coincident", 2, 2, 1, 3),
    Sketcher.Constraint("PointOnObject", 1, 3, -1),
    Sketcher.Constraint("Diameter", 3, 3.0),
    Sketcher.Constraint("Radius", 1, 10.0),
    Sketcher.Constraint("DistanceX", -1, 1, 1, 3, 155.0),
    Sketcher.Constraint("DistanceX", -1, 1, 3, 3, 151.751739),
    Sketcher.Constraint("DistanceY", 3, 3, -1, 1, 3.801157),
])
pad7 = body.newObject("PartDesign::Pad", "Pad006")
pad7.Profile = sketch14
pad7.Length = 10
pad7.Reversed = True
doc.recompute()

datumplane2 = body.newObject("PartDesign::Plane", "DatumPlane001")
datumplane2.AttachmentSupport = (doc.getObject("YZ_Plane"), [""])
datumplane2.MapMode = "FlatFace"
datumplane2.AttachmentOffset = App.Placement(V(0, 0, 80), App.Rotation())
mirrored2 = body.newObject("PartDesign::Mirrored", "Mirrored001")
mirrored2.Originals = [pad7]
mirrored2.MirrorPlane = (datumplane2, [""])
body.Tip = mirrored2

# Sketch on XZ plane
sketch15 = body.newObject("Sketcher::SketchObject", "Sketch014")
sketch15.AttachmentSupport = (doc.getObject("XZ_Plane"), [""])
sketch15.MapMode = "FlatFace"
sketch15.AttachmentOffset = App.Placement(V(0, 0, 190), App.Rotation())
sketch15.addGeometry([
    Part.LineSegment(V(145, -168.2, 0), V(155, -168.2, 0)),
    Part.LineSegment(V(155, -168.2, 0), V(155, -158.2, 0)),
    Part.ArcOfCircle(Part.Circle(V(155, -168.2, 0), V(0, 0, 1), 10), math.radians(90), math.radians(180)),
    Part.Circle(V(151.6, -164.5, 0), V(0, 0, 1), 1.5),
], False)
sketch15.addConstraint([
    Sketcher.Constraint("Coincident", 0, 2, 1, 1),
    Sketcher.Constraint("Coincident", 1, 2, 2, 1),
    Sketcher.Constraint("Coincident", 2, 2, 0, 1),
    Sketcher.Constraint("Horizontal", 0),
    Sketcher.Constraint("Vertical", 1),
    Sketcher.Constraint("Coincident", 0, 2, 2, 3),
    Sketcher.Constraint("Diameter", 3, 3.0),
    Sketcher.Constraint("Radius", 2, 10.0),
    Sketcher.Constraint("DistanceX", -1, 1, 2, 3, 155.0),
    Sketcher.Constraint("DistanceY", 2, 3, -1, 1, 168.205081),
    Sketcher.Constraint("DistanceX", -1, 1, 3, 3, 151.620258),
    Sketcher.Constraint("DistanceY", 3, 3, -1, 1, 164.520336),
])
pad8 = body.newObject("PartDesign::Pad", "Pad007")
pad8.Profile = sketch15
pad8.Length = 10
pad8.Reversed = True
doc.recompute()

datumplane3 = body.newObject("PartDesign::Plane", "DatumPlane002")
datumplane3.AttachmentSupport = (doc.getObject("YZ_Plane"), [""])
datumplane3.MapMode = "FlatFace"
datumplane3.AttachmentOffset = App.Placement(V(0, 0, 80), App.Rotation())
mirrored3 = body.newObject("PartDesign::Mirrored", "Mirrored002")
mirrored3.Originals = [pad8]
mirrored3.MirrorPlane = (datumplane3, [""])
body.Tip = mirrored3

# Sketch on YZ plane
sketch16 = body.newObject("Sketcher::SketchObject", "Sketch015")
sketch16.AttachmentSupport = (doc.getObject("YZ_Plane"), [""])
sketch16.MapMode = "FlatFace"
sketch16.AttachmentOffset = App.Placement(V(0, 0, 160), App.Rotation())
sketch16.addGeometry(Part.Circle(V(-182, -30, 0), V(0, 0, 1), 5), False)
sketch16.addConstraint([
    Sketcher.Constraint("Diameter", 0, 10.0),
    Sketcher.Constraint("DistanceX", 0, 3, -1, 1, 182.0),
    Sketcher.Constraint("DistanceY", 0, 3, -1, 1, 30.0),
])
pocket8 = body.newObject("PartDesign::Pocket", "Pocket007")
pocket8.Profile = sketch16
pocket8.Length = 10

doc.recompute()
